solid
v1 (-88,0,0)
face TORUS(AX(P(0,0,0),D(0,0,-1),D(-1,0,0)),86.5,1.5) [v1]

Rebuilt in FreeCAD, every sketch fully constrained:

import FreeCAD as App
import Part
import Sketcher
Q = App.Units.Quantity

doc = App.newDocument("Part")
body = doc.addObject("PartDesign::Body", "Body")

# Sketch on XZ plane
sketch1 = body.newObject("Sketcher::SketchObject", "Sketch")
sketch1.AttachmentSupport = (doc.getObject("XZ_Plane"), [""])
sketch1.MapMode = "FlatFace"
sketch1.addGeometry(Part.Circle(App.Vector(-86.5, 0, 0), App.Vector(0, 0, 1), 1.5), False)
sketch1.addConstraint([
    Sketcher.Constraint("PointOnObject", 0, 3, -1),
    Sketcher.Constraint("Diameter", 0, Q("3 mm")),
    Sketcher.Constraint("DistanceX", 0, 3, -1, 1, Q("86.5 mm")),
])
revolution = body.newObject("PartDesign::Revolution", "Revolution")
revolution.Profile = sketch1
revolution.ReferenceAxis = (sketch1, ["V_Axis"])
revolution.Angle = 360

doc.recompute()
